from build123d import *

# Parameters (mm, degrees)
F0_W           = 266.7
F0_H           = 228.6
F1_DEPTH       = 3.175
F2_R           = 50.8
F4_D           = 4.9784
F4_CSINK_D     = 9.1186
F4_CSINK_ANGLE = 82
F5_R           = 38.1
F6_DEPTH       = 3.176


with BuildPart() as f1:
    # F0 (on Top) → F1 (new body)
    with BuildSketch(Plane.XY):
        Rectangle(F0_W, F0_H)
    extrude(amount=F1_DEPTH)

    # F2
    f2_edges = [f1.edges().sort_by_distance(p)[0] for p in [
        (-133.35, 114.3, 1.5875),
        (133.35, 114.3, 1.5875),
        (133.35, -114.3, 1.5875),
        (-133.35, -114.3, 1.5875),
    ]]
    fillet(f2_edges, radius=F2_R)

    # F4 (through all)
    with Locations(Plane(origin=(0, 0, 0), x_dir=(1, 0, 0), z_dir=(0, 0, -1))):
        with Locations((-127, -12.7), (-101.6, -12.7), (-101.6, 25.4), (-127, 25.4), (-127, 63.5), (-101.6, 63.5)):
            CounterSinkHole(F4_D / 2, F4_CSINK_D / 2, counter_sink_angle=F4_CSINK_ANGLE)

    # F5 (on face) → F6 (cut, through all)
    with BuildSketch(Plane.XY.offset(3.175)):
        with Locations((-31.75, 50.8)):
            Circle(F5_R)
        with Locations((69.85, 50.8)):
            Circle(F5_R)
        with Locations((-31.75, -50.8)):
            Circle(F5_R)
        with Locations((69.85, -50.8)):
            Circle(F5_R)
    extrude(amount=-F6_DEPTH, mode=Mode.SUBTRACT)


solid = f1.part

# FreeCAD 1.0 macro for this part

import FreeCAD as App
import Part
import Sketcher
Q = App.Units.Quantity


def edges_at(feature, points):
    """Names of the edges that pass closest to the given points."""
    edges = feature.Shape.Edges
    near = lambda p: min(range(len(edges)), key=lambda i: edges[i].distToShape(Part.Vertex(*p))[0])
    return sorted({f"Edge{near(p) + 1}" for p in points})

doc = App.newDocument("Part")
body = doc.addObject("PartDesign::Body", "Body")

# Sketch on XY plane
sketch1 = body.newObject("Sketcher::SketchObject", "Sketch")
sketch1.AttachmentSupport = (doc.getObject("XY_Plane"), [""])
sketch1.MapMode = "FlatFace"
sketch1.addGeometry([
    Part.LineSegment(App.Vector(-133, 114, 0), App.Vector(-133, -114, 0)),
    Part.LineSegment(App.Vector(-133, -114, 0), App.Vector(133, -114, 0)),
    Part.LineSegment(App.Vector(133, -114, 0), App.Vector(133, 114, 0)),
    Part.LineSegment(App.Vector(133, 114, 0), App.Vector(-133, 114, 0)),
], False)
sketch1.addConstraint([
    Sketcher.Constraint("Coincident", 0, 2, 1, 1),
    Sketcher.Constraint("Coincident", 1, 2, 2, 1),
    Sketcher.Constraint("Coincident", 2, 2, 3, 1),
    Sketcher.Constraint("Coincident", 3, 2, 0, 1),
    Sketcher.Constraint("Vertical", 0),
    Sketcher.Constraint("Horizontal", 1),
    Sketcher.Constraint("Vertical", 2),
    Sketcher.Constraint("Horizontal", 3),
    Sketcher.Constraint("Symmetric", 0, 2, 2, 2, -1, 1),
    Sketcher.Constraint("DistanceY", 0, 2, 0, 1, Q("9 in")),
    Sketcher.Constraint("DistanceX", 1, 1, 1, 2, Q("10.5 in")),
])
pad1 = body.newObject("PartDesign::Pad", "Pad")
pad1.Profile = sketch1
pad1.Length = Q("0.125 in")
doc.recompute()

fillet = body.newObject("PartDesign::Fillet", "Fillet")
fillet.Base = (pad1, edges_at(pad1, [
    (-133.35, 114.3, 1.587),
    (133.35, 114.3, 1.587),
    (133.35, -114.3, 1.587),
    (-133.35, -114.3, 1.587),
]))
fillet.Radius = Q("2 in")

# Sketch on XY plane
sketch2 = body.newObject("Sketcher::SketchObject", "Sketch001")
sketch2.AttachmentSupport = (doc.getObject("XY_Plane"), [""])
sketch2.MapMode = "FlatFace"
sketch2.addGeometry([
    Part.Circle(App.Vector(-127, 12.7, 0), App.Vector(0, 0, 1), 2.5),  # 0
    Part.Circle(App.Vector(-101.6, 12.7, 0), App.Vector(0, 0, 1), 2.5),  # 1
    Part.Circle(App.Vector(-101.6, -25.4, 0), App.Vector(0, 0, 1), 2.5),  # 2
    Part.Circle(App.Vector(-127, -25.4, 0), App.Vector(0, 0, 1), 2.5),  # 3
    Part.Circle(App.Vector(-127, -63.5, 0), App.Vector(0, 0, 1), 2.5),  # 4
    Part.Circle(App.Vector(-101.6, -63.5, 0), App.Vector(0, 0, 1), 2.5),  # 5
], False)
sketch2.addConstraint([
    Sketcher.Constraint("Equal", 0, 1),
    Sketcher.Constraint("Equal", 1, 2),
    Sketcher.Constraint("Equal", 2, 3),
    Sketcher.Constraint("Equal", 3, 4),
    Sketcher.Constraint("Equal", 4, 5),
    Sketcher.Constraint("Horizontal", 0, 3, 1, 3),
    Sketcher.Constraint("Horizontal", 2, 3, 3, 3),
    Sketcher.Constraint("Horizontal", 4, 3, 5, 3),
    Sketcher.Constraint("Vertical", 1, 3, 2, 3),
    Sketcher.Constraint("Vertical", 0, 3, 3, 3),
    Sketcher.Constraint("Vertical", 3, 3, 4, 3),
    Sketcher.Constraint("Vertical", 2, 3, 5, 3),
    Sketcher.Constraint("Diameter", 0, Q("0.196 in")),
    Sketcher.Constraint("DistanceX", 0, 3, -1, 1, Q("5 in")),
    Sketcher.Constraint("DistanceX", 1, 3, -1, 1, Q("4 in")),
    Sketcher.Constraint("DistanceY", 2, 3, -1, 1, Q("1 in")),
    Sketcher.Constraint("DistanceY", 4, 3, 0, 3, Q("3 in")),
    Sketcher.Constraint("DistanceY", -1, 1, 0, 3, Q("0.5 in")),
])
doc.recompute()
hole = body.newObject("PartDesign::Hole", "Hole")
hole.Profile = sketch2
hole.ThreadType = "None"
hole.Diameter = Q("0.196 in")
hole.DepthType = "ThroughAll"
hole.HoleCutType = "Countersink"
hole.HoleCutDiameter = Q("0.359 in")
hole.HoleCutCountersinkAngle = 82
hole.Reversed = True

# Sketch on XY plane
sketch3 = body.newObject("Sketcher::SketchObject", "Sketch002")
sketch3.AttachmentSupport = (doc.getObject("XY_Plane"), [""])
sketch3.MapMode = "FlatFace"
sketch3.AttachmentOffset = App.Placement(App.Vector(0, 0, 0.125 * 25.4), App.Rotation())
sketch3.addGeometry([
    Part.Circle(App.Vector(-32, 51, 0), App.Vector(0, 0, 1), 38),
    Part.Circle(App.Vector(70, 51, 0), App.Vector(0, 0, 1), 38),
    Part.Circle(App.Vector(-32, -51, 0), App.Vector(0, 0, 1), 38),
    Part.Circle(App.Vector(70, -51, 0), App.Vector(0, 0, 1), 38),
], False)
sketch3.addConstraint([
    Sketcher.Constraint("Equal", 0, 1),
    Sketcher.Constraint("Equal", 1, 2),
    Sketcher.Constraint("Equal", 2, 3),
    Sketcher.Constraint("Symmetric", 0, 3, 2, 3, -1),
    Sketcher.Constraint("Symmetric", 1, 3, 3, 3, -1),
    Sketcher.Constraint("Horizontal", 0, 3, 1, 3),
    Sketcher.Constraint("Diameter", 0, Q("3 in")),
    Sketcher.Constraint("DistanceY", -1, 1, 0, 3, Q("2 in")),
    Sketcher.Constraint("DistanceX", 0, 3, 1, 3, Q("4 in")),
    Sketcher.Constraint("DistanceX", 0, 3, -1, 1, Q("1.25 in")),
])
pocket1 = body.newObject("PartDesign::Pocket", "Pocket")
pocket1.Profile = sketch3
pocket1.Type = "ThroughAll"

doc.recompute()
